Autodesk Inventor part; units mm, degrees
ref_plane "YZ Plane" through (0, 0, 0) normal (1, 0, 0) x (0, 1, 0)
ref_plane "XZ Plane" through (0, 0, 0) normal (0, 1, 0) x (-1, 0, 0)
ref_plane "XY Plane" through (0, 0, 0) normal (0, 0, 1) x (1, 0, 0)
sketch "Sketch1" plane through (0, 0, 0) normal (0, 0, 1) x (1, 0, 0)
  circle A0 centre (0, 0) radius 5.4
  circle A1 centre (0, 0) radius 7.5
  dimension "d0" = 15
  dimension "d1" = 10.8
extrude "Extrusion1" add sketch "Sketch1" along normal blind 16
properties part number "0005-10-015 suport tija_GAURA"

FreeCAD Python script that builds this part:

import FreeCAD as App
import Part
import Sketcher

V = App.Vector

doc = App.newDocument("Part")
body = doc.addObject("PartDesign::Body", "Body")

sketch1 = body.newObject("Sketcher::SketchObject", "Sketch")
sketch1.AttachmentSupport = (doc.getObject("XY_Plane"), [""])
sketch1.MapMode = "FlatFace"
sketch1.addGeometry(Part.Circle(V(0, 0, 0), V(0, 0, 1), 8), False)
sketch1.addGeometry(Part.Circle(V(0, 0, 0), V(0, 0, 1), 5), False)
sketch1.addConstraint(Sketcher.Constraint("Coincident", 0, 3, -1, 1))
sketch1.addConstraint(Sketcher.Constraint("Coincident", 1, 3, -1, 1))
sketch1.addConstraint(Sketcher.Constraint("Diameter", 0, 15.0))
sketch1.addConstraint(Sketcher.Constraint("Diameter", 1, 10.8))
pad1 = body.newObject("PartDesign::Pad", "Pad")
pad1.Profile = sketch1
pad1.Length = 16

doc.recompute()
